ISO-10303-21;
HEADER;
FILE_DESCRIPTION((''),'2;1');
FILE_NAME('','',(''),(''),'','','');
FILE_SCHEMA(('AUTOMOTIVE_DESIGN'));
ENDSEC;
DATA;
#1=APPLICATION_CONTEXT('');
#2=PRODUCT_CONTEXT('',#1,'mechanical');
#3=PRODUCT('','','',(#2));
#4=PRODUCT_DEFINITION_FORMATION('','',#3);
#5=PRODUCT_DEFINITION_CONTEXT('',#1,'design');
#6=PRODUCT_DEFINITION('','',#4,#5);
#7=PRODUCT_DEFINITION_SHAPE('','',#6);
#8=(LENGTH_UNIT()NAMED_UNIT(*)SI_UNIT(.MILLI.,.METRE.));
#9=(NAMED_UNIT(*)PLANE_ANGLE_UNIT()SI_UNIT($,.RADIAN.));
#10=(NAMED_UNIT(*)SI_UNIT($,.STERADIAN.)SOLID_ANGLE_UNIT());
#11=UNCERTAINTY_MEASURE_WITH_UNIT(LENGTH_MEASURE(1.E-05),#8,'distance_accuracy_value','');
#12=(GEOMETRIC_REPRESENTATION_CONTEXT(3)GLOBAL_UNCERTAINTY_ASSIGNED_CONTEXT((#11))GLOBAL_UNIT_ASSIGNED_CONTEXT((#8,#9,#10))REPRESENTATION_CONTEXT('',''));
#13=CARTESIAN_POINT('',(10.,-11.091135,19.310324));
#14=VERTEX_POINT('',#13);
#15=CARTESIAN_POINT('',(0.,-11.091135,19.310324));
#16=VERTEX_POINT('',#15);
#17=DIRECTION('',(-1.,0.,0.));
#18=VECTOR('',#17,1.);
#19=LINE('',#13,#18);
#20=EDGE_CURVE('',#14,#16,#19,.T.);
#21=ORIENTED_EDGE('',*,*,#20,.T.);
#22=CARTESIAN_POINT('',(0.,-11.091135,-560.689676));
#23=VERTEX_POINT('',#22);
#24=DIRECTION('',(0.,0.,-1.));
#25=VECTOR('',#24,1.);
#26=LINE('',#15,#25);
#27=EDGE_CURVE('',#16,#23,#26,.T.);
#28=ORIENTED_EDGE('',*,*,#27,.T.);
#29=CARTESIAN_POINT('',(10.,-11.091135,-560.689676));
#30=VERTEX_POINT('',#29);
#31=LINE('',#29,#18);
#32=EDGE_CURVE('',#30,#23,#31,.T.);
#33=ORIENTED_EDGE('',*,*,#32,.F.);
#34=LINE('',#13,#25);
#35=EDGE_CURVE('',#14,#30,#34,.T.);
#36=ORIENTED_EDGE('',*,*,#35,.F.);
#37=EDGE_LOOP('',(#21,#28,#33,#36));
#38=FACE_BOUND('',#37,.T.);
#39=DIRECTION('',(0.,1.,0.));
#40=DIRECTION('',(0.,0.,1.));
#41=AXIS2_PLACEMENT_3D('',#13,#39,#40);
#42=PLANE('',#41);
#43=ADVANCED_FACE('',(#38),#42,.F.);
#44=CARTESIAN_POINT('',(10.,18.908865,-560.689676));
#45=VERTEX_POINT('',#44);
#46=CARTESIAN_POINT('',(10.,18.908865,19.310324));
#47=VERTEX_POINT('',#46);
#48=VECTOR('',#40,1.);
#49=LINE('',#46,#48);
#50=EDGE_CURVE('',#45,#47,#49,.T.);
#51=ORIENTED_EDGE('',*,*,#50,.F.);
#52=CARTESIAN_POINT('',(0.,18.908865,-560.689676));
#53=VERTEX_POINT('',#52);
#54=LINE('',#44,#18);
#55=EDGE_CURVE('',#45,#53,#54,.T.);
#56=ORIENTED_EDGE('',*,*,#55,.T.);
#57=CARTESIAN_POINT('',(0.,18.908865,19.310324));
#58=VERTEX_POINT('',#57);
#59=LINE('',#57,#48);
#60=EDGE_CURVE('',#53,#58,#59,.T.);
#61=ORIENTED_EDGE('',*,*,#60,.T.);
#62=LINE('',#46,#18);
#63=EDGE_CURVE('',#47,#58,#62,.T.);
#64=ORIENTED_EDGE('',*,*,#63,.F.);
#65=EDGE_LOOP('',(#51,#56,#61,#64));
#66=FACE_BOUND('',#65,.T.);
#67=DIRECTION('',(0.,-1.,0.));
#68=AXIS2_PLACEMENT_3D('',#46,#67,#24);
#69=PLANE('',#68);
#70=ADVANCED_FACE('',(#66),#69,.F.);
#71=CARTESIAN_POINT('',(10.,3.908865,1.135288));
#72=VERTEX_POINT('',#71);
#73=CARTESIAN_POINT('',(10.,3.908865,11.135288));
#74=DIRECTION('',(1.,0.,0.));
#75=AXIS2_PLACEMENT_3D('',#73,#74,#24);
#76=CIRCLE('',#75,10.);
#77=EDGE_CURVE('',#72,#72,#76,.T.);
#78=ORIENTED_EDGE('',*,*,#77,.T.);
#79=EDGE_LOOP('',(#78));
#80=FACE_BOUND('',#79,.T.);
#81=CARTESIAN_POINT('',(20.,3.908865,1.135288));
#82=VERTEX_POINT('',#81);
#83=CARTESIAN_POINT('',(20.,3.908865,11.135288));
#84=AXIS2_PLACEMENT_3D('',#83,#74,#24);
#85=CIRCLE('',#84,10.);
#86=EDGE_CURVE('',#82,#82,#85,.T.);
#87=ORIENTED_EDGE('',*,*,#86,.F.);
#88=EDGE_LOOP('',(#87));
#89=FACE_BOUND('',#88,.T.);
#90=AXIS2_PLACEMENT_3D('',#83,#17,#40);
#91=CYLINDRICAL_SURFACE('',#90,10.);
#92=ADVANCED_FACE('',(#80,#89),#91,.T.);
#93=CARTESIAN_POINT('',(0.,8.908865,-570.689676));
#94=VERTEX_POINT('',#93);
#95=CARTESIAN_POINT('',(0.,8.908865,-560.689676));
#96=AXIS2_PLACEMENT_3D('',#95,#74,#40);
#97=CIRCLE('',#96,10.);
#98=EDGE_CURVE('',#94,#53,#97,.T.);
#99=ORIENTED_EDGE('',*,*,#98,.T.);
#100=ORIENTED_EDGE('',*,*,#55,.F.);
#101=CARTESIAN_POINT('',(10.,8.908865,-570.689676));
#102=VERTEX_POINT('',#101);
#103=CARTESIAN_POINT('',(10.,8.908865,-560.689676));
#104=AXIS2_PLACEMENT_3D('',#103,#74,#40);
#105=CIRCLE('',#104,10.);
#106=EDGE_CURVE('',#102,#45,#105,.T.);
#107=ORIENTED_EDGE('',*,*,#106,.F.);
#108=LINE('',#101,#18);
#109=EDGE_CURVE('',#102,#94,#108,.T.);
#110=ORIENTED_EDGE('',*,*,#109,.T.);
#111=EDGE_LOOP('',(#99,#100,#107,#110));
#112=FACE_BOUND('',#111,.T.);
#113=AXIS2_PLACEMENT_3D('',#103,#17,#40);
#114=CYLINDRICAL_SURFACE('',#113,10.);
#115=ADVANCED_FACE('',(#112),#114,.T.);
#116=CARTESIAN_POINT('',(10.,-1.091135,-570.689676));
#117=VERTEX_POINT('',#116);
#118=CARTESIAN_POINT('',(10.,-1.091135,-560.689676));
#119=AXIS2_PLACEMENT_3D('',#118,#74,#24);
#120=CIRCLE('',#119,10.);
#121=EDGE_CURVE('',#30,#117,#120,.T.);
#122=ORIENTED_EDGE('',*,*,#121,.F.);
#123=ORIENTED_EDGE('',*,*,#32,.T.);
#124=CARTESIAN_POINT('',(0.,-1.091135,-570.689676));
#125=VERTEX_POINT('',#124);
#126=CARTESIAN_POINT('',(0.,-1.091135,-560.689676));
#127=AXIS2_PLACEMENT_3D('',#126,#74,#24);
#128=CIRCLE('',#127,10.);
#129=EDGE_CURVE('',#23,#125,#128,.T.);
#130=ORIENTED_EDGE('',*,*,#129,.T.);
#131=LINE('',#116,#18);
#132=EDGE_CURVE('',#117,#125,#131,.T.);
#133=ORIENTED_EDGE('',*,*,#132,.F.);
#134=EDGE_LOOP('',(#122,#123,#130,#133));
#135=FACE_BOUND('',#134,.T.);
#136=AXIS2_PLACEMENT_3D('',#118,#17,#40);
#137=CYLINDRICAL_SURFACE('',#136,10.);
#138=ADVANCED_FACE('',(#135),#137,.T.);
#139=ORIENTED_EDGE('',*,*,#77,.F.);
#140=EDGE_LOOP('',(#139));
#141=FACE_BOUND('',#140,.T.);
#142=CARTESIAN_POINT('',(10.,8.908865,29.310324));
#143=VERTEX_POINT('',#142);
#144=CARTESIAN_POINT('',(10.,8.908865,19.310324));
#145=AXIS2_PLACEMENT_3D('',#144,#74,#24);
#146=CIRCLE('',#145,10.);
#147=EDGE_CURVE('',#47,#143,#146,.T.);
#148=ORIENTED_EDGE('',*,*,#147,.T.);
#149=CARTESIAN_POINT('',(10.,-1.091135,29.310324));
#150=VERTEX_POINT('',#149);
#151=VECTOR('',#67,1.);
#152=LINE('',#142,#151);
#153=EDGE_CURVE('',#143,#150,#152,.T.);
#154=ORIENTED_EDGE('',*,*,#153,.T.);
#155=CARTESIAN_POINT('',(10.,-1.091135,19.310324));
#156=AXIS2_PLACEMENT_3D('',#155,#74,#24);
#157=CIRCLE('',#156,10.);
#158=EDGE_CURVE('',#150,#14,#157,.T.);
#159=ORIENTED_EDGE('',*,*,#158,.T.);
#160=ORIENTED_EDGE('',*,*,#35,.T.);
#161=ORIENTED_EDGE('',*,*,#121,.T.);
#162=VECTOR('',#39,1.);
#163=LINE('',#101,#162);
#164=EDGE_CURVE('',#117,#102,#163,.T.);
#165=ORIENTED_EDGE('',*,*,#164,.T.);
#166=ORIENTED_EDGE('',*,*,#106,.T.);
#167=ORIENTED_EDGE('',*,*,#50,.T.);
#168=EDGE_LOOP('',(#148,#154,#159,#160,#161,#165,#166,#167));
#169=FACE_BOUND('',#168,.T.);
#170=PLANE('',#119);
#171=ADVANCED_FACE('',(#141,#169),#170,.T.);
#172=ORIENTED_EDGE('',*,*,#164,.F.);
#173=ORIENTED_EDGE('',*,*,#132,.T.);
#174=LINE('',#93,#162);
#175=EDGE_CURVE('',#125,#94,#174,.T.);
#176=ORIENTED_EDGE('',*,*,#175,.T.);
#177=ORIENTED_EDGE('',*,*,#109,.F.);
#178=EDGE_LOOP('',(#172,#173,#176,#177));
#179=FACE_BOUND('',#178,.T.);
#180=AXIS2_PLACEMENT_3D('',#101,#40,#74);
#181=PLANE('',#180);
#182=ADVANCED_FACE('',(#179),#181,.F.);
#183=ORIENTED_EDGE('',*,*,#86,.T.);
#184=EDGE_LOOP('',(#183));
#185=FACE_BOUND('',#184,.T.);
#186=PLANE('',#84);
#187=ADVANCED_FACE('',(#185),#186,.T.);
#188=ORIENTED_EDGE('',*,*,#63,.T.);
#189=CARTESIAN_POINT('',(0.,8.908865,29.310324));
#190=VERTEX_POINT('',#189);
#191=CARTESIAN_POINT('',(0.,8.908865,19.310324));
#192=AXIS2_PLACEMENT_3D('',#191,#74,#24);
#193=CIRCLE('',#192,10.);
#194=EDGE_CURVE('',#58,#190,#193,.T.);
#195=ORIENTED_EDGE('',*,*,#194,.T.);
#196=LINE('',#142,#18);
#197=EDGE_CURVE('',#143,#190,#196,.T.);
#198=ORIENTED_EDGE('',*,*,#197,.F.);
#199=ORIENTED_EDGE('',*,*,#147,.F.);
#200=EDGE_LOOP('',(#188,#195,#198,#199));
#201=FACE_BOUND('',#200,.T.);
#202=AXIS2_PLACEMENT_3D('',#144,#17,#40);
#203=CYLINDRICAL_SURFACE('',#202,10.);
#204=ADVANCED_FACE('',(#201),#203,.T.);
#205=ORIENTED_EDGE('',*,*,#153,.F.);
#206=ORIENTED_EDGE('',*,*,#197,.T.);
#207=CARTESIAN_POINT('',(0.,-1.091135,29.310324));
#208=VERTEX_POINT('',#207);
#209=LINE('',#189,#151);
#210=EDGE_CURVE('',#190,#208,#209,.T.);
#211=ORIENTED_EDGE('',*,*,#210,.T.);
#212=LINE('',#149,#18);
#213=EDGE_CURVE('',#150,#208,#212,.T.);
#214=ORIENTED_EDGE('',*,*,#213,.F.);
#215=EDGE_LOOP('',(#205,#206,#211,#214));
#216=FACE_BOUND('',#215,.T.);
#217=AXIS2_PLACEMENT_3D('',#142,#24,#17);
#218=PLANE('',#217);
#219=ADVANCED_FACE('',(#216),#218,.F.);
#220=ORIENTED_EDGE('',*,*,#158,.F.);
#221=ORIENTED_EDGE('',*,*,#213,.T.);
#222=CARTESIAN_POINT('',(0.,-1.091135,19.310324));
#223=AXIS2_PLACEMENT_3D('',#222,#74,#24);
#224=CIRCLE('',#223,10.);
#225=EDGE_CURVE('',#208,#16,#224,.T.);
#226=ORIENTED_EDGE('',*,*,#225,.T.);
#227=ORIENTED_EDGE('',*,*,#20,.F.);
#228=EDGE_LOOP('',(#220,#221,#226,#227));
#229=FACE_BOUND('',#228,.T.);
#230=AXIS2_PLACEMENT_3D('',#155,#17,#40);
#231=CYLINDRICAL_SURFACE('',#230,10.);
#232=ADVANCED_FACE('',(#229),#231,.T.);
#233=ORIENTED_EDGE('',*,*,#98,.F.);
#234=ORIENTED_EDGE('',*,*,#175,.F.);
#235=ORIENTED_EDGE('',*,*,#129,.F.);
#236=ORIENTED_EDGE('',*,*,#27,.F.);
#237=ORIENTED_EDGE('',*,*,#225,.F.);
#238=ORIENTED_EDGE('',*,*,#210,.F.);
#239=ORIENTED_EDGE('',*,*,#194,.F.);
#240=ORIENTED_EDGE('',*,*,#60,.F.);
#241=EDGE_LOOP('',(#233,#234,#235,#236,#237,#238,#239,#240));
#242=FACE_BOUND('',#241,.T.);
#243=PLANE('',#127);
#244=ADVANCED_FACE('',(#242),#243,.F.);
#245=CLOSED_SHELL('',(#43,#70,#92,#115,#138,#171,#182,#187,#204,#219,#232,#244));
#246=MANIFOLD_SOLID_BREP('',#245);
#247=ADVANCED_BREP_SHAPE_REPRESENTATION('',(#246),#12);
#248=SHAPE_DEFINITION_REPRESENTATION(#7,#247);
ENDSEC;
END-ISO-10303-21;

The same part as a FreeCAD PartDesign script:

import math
import FreeCAD as App
import Part
import Sketcher

V = App.Vector

doc = App.newDocument("Part")
body = doc.addObject("PartDesign::Body", "Body")

# Sketch on YZ plane
sketch1 = body.newObject("Sketcher::SketchObject", "Sketch")
sketch1.AttachmentSupport = (doc.getObject("YZ_Plane"), [""])
sketch1.MapMode = "FlatFace"
sketch1.addGeometry([
    Part.LineSegment(V(19, -561, 0), V(19, 19, 0)),  # 0
    Part.ArcOfCircle(Part.Circle(V(9, 19, 0), V(0, 0, 1), 10), math.radians(0), math.radians(90)),  # 1
    Part.LineSegment(V(9, 29, 0), V(-1, 29, 0)),  # 2
    Part.ArcOfCircle(Part.Circle(V(-1, 19, 0), V(0, 0, 1), 10), math.radians(90), math.radians(180)),  # 3
    Part.LineSegment(V(-11, 19, 0), V(-11, -561, 0)),  # 4
    Part.ArcOfCircle(Part.Circle(V(-1, -561, 0), V(0, 0, 1), 10), math.radians(180), math.radians(270)),  # 5
    Part.LineSegment(V(-1, -571, 0), V(9, -571, 0)),  # 6
    Part.ArcOfCircle(Part.Circle(V(9, -561, 0), V(0, 0, 1), 10), math.radians(-90), math.radians(0)),  # 7
], False)
sketch1.addConstraint([
    Sketcher.Constraint("Tangent", 0, 2, 1, 1),
    Sketcher.Constraint("Tangent", 1, 2, 2, 1),
    Sketcher.Constraint("Tangent", 2, 2, 3, 1),
    Sketcher.Constraint("Tangent", 3, 2, 4, 1),
    Sketcher.Constraint("Tangent", 4, 2, 5, 1),
    Sketcher.Constraint("Tangent", 5, 2, 6, 1),
    Sketcher.Constraint("Tangent", 6, 2, 7, 1),
    Sketcher.Constraint("Tangent", 7, 2, 0, 1),
    Sketcher.Constraint("Vertical", 0),
    Sketcher.Constraint("Horizontal", 2),
    Sketcher.Constraint("Vertical", 4),
    Sketcher.Constraint("Horizontal", 6),
    Sketcher.Constraint("Equal", 1, 3),
    Sketcher.Constraint("Equal", 3, 5),
    Sketcher.Constraint("Equal", 5, 7),
    Sketcher.Constraint("Radius", 1, 10.0),
    Sketcher.Constraint("DistanceX", 2, 2, 2, 1, 10.0),
    Sketcher.Constraint("DistanceY", 0, 1, 0, 2, 580.0),
    Sketcher.Constraint("DistanceX", -1, 1, 1, 3, 8.908865),
    Sketcher.Constraint("DistanceY", -1, 1, 1, 3, 19.310324),
])
pad1 = body.newObject("PartDesign::Pad", "Pad")
pad1.Profile = sketch1
pad1.Length = 10

# Sketch on YZ plane
sketch2 = body.newObject("Sketcher::SketchObject", "Sketch001")
sketch2.AttachmentSupport = (doc.getObject("YZ_Plane"), [""])
sketch2.MapMode = "FlatFace"
sketch2.AttachmentOffset = App.Placement(V(0, 0, 10), App.Rotation())
sketch2.addGeometry(Part.Circle(V(4, 11, 0), V(0, 0, 1), 10), False)
sketch2.addConstraint([
    Sketcher.Constraint("Diameter", 0, 20.0),
    Sketcher.Constraint("DistanceY", -1, 1, 0, 3, 11.135288),
    Sketcher.Constraint("DistanceX", -1, 1, 0, 3, 3.908865),
])
pad2 = body.newObject("PartDesign::Pad", "Pad001")
pad2.Profile = sketch2
pad2.Length = 10

doc.recompute()
